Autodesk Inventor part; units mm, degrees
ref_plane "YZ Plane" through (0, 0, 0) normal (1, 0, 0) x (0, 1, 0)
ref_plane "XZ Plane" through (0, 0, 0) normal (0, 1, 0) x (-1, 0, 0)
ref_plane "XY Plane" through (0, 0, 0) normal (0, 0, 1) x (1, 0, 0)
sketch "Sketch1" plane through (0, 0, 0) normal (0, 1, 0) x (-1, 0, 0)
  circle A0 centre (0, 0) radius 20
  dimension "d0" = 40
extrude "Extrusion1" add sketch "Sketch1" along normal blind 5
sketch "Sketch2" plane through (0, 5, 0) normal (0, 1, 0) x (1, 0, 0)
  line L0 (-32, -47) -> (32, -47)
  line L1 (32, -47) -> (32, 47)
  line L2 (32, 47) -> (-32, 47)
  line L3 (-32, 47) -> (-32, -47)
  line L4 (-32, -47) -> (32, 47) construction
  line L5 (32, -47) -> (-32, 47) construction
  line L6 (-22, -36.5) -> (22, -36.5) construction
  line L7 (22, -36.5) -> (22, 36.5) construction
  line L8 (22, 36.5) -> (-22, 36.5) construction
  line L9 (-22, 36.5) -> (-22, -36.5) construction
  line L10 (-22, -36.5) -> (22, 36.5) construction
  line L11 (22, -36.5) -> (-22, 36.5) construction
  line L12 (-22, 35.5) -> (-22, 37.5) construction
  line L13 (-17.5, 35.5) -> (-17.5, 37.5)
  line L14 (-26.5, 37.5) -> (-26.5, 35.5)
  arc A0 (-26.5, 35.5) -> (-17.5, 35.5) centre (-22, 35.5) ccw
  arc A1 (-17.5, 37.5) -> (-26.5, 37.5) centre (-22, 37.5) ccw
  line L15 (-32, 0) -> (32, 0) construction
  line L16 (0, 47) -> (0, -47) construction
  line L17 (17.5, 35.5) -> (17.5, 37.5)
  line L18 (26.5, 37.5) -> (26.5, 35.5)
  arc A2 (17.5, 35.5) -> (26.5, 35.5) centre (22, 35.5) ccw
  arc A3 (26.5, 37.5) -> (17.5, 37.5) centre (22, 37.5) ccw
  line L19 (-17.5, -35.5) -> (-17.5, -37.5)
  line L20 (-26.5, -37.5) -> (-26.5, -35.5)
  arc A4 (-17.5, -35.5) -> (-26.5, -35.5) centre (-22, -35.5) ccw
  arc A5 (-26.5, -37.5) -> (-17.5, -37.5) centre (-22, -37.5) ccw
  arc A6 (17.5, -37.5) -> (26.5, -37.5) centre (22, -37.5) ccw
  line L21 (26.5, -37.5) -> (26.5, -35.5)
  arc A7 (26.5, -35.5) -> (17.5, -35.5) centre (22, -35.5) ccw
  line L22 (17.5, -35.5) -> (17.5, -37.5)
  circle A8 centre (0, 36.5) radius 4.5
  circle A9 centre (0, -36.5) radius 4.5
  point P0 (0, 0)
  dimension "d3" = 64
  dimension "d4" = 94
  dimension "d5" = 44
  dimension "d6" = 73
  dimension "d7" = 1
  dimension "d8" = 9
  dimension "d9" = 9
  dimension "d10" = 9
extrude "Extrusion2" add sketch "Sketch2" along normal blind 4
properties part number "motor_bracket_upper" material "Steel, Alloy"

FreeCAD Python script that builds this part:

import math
import FreeCAD as App
import Part
import Sketcher
from FreeCAD import Vector
Q = App.Units.Quantity

doc = App.newDocument("Part")
body = doc.addObject("PartDesign::Body", "Body")

sketch1 = body.newObject("Sketcher::SketchObject", "Sketch")
sketch1.AttachmentSupport = (doc.getObject("XZ_Plane"), [""])
sketch1.MapMode = "FlatFace"
sketch1.addGeometry(Part.Circle(Vector(0, 0, 0), Vector(0, 0, 1), 20), False)
sketch1.addConstraint([
    Sketcher.Constraint("Coincident", 0, 3, -1, 1),
    Sketcher.Constraint("Diameter", 0, Q("40 mm")),
])
pad1 = body.newObject("PartDesign::Pad", "Pad")
pad1.Profile = sketch1
pad1.Length = 5
pad1.Reversed = True

sketch2 = body.newObject("Sketcher::SketchObject", "Sketch001")
sketch2.AttachmentSupport = (doc.getObject("XZ_Plane"), [""])
sketch2.MapMode = "FlatFace"
sketch2.AttachmentOffset = App.Placement(Vector(0, 0, -5), App.Rotation())
sketch2.addGeometry([
    Part.LineSegment(Vector(-32, -47, 0), Vector(-32, 47, 0)),
    Part.LineSegment(Vector(-32, 47, 0), Vector(32, 47, 0)),
    Part.LineSegment(Vector(32, 47, 0), Vector(32, -47, 0)),
    Part.LineSegment(Vector(32, -47, 0), Vector(-32, -47, 0)),
    Part.ArcOfCircle(Part.Circle(Vector(-22, 35.5, 0), Vector(0, 0, 1), 4.5), math.radians(180), math.radians(360)),
    Part.LineSegment(Vector(-17.5, 35.5, 0), Vector(-17.5, 37.5, 0)),
    Part.ArcOfCircle(Part.Circle(Vector(-22, 37.5, 0), Vector(0, 0, 1), 4.5), math.radians(0), math.radians(180)),
    Part.LineSegment(Vector(-26.5, 37.5, 0), Vector(-26.5, 35.5, 0)),
    Part.Circle(Vector(0, 36.5, 0), Vector(0, 0, 1), 4.5),
    Part.ArcOfCircle(Part.Circle(Vector(22, 37.5, 0), Vector(0, 0, 1), 4.5), math.radians(0), math.radians(180)),
    Part.LineSegment(Vector(17.5, 37.5, 0), Vector(17.5, 35.5, 0)),
    Part.ArcOfCircle(Part.Circle(Vector(22, 35.5, 0), Vector(0, 0, 1), 4.5), math.radians(180), math.radians(360)),
    Part.LineSegment(Vector(26.5, 35.5, 0), Vector(26.5, 37.5, 0)),
    Part.LineSegment(Vector(-17.5, -37.5, 0), Vector(-17.5, -35.5, 0)),
    Part.ArcOfCircle(Part.Circle(Vector(-22, -35.5, 0), Vector(0, 0, 1), 4.5), math.radians(0), math.radians(180)),
    Part.LineSegment(Vector(-26.5, -35.5, 0), Vector(-26.5, -37.5, 0)),
    Part.ArcOfCircle(Part.Circle(Vector(-22, -37.5, 0), Vector(0, 0, 1), 4.5), math.radians(180), math.radians(360)),
    Part.Circle(Vector(0, -36.5, 0), Vector(0, 0, 1), 4.5),
    Part.ArcOfCircle(Part.Circle(Vector(22, -35.5, 0), Vector(0, 0, 1), 4.5), math.radians(0), math.radians(180)),
    Part.LineSegment(Vector(17.5, -35.5, 0), Vector(17.5, -37.5, 0)),
    Part.ArcOfCircle(Part.Circle(Vector(22, -37.5, 0), Vector(0, 0, 1), 4.5), math.radians(180), math.radians(360)),
    Part.LineSegment(Vector(26.5, -37.5, 0), Vector(26.5, -35.5, 0)),
], False)
sketch2.addConstraint([
    Sketcher.Constraint("Coincident", 0, 2, 1, 1),
    Sketcher.Constraint("Coincident", 1, 2, 2, 1),
    Sketcher.Constraint("Coincident", 2, 2, 3, 1),
    Sketcher.Constraint("Coincident", 3, 2, 0, 1),
    Sketcher.Constraint("Tangent", 4, 2, 5, 1),
    Sketcher.Constraint("Tangent", 5, 2, 6, 1),
    Sketcher.Constraint("Tangent", 6, 2, 7, 1),
    Sketcher.Constraint("Tangent", 7, 2, 4, 1),
    Sketcher.Constraint("Tangent", 9, 2, 10, 1),
    Sketcher.Constraint("Tangent", 10, 2, 11, 1),
    Sketcher.Constraint("Tangent", 11, 2, 12, 1),
    Sketcher.Constraint("Tangent", 12, 2, 9, 1),
    Sketcher.Constraint("Tangent", 13, 2, 14, 1),
    Sketcher.Constraint("Tangent", 14, 2, 15, 1),
    Sketcher.Constraint("Tangent", 15, 2, 16, 1),
    Sketcher.Constraint("Tangent", 16, 2, 13, 1),
    Sketcher.Constraint("Tangent", 18, 2, 19, 1),
    Sketcher.Constraint("Tangent", 19, 2, 20, 1),
    Sketcher.Constraint("Tangent", 20, 2, 21, 1),
    Sketcher.Constraint("Tangent", 21, 2, 18, 1),
    Sketcher.Constraint("Vertical", 0),
    Sketcher.Constraint("Horizontal", 1),
    Sketcher.Constraint("Vertical", 2),
    Sketcher.Constraint("Horizontal", 3),
    Sketcher.Constraint("Vertical", 5),
    Sketcher.Constraint("Vertical", 7),
    Sketcher.Constraint("Vertical", 10),
    Sketcher.Constraint("Vertical", 12),
    Sketcher.Constraint("Vertical", 13),
    Sketcher.Constraint("Vertical", 15),
    Sketcher.Constraint("Vertical", 19),
    Sketcher.Constraint("Vertical", 21),
    Sketcher.Constraint("Equal", 6, 8),
    Sketcher.Constraint("Equal", 8, 9),
    Sketcher.Constraint("Equal", 11, 14),
    Sketcher.Constraint("Equal", 16, 17),
    Sketcher.Constraint("Equal", 17, 18),
    Sketcher.Constraint("Symmetric", 11, 3, 14, 3, -1, 1),
    Sketcher.Constraint("Symmetric", 8, 3, 17, 3, -1, 1),
    Sketcher.Constraint("Symmetric", 4, 3, 18, 3, -1, 1),
    Sketcher.Constraint("Symmetric", 0, 2, 2, 2, -1, 1),
    Sketcher.Constraint("Symmetric", 6, 3, 9, 3, -2),
    Sketcher.Constraint("PointOnObject", 8, 3, -2),
    Sketcher.Constraint("Horizontal", 4, 3, 11, 3),
    Sketcher.Constraint("Horizontal", 16, 3, 20, 3),
    Sketcher.Constraint("Equal", 12, 13),
    Sketcher.Constraint("Diameter", 8, Q("9 mm")),
    Sketcher.Constraint("DistanceX", 1, 1, 1, 2, Q("64 mm")),
    Sketcher.Constraint("DistanceY", 0, 1, 0, 2, Q("94 mm")),
    Sketcher.Constraint("DistanceY", 4, 3, 8, 3, Q("1 mm")),
    Sketcher.Constraint("DistanceY", 8, 3, 6, 3, Q("1 mm")),
    Sketcher.Constraint("DistanceX", 6, 3, 9, 3, Q("44 mm")),
    Sketcher.Constraint("DistanceY", 14, 3, 6, 3, Q("73 mm")),
])
pad2 = body.newObject("PartDesign::Pad", "Pad001")
pad2.Profile = sketch2
pad2.Length = 4
pad2.Reversed = True

doc.recompute()
